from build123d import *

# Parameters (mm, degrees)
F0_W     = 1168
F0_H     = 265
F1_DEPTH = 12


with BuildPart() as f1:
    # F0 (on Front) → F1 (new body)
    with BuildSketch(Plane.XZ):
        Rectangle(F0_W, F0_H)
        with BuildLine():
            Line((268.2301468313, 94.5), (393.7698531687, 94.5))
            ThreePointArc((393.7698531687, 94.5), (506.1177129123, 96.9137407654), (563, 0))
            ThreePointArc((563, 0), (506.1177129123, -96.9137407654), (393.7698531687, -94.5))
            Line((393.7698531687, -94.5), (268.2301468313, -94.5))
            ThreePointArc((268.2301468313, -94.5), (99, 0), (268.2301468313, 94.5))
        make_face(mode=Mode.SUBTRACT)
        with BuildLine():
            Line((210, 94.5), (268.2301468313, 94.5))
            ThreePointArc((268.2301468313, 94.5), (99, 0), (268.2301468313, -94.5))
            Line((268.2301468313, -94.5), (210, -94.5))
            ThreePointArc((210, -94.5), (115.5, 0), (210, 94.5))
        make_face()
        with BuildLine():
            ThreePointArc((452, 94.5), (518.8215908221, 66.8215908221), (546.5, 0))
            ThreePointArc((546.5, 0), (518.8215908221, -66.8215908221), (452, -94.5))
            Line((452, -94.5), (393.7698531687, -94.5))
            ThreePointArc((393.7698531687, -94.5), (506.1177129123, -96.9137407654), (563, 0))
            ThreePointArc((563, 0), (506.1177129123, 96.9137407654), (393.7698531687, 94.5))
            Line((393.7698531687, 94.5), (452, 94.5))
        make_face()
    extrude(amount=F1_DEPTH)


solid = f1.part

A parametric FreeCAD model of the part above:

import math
import FreeCAD as App
import Part
import Sketcher

V = App.Vector
Q = App.Units.Quantity


def add_polygon(sketch, points):
    """Adds a closed chain of lines whose ends are joined by coincident constraints."""
    first, n = sketch.GeometryCount, len(points)
    for a, b in zip(points, points[1:] + points[:1]):
        sketch.addGeometry(Part.LineSegment(App.Vector(*a, 0), App.Vector(*b, 0)), False)
    for i in range(n):
        sketch.addConstraint(Sketcher.Constraint("Coincident", first + i, 2, first + (i + 1) % n, 1))

doc = App.newDocument("Part")
body = doc.addObject("PartDesign::Body", "Body")

# Sketch on XZ plane
sketch1 = body.newObject("Sketcher::SketchObject", "Sketch")
sketch1.AttachmentSupport = (doc.getObject("XZ_Plane"), [""])
sketch1.MapMode = "FlatFace"
add_polygon(sketch1, [(-584, 132), (-584, -132), (584, -132), (584, 132)])  # lines 0-3
sketch1.addGeometry(Part.ArcOfCircle(Part.Circle(V(210, 0, 0), V(0, 0, 1), 94), math.radians(90), math.radians(270)), False)  # 4
sketch1.addGeometry(Part.LineSegment(V(210, 94, 0), V(452, 94, 0)), False)  # 5
sketch1.addGeometry(Part.ArcOfCircle(Part.Circle(V(452, 0, 0), V(0, 0, 1), 94), math.radians(0), math.radians(90)), False)  # 6
sketch1.addGeometry(Part.ArcOfCircle(Part.Circle(V(452, 0, 0), V(0, 0, 1), 94), math.radians(-90), math.radians(0)), False)  # 7
sketch1.addGeometry(Part.LineSegment(V(452, -94, 0), V(210, -94, 0)), False)  # 8
sketch1.addConstraint([
    Sketcher.Constraint("Tangent", 4, 1, 5, 1),
    Sketcher.Constraint("Tangent", 5, 2, 6, 2),
    Sketcher.Constraint("Tangent", 6, 1, 7, 2),
    Sketcher.Constraint("Tangent", 7, 1, 8, 1),
    Sketcher.Constraint("Tangent", 8, 2, 4, 2),
    Sketcher.Constraint("Vertical", 0),
    Sketcher.Constraint("Horizontal", 1),
    Sketcher.Constraint("Vertical", 2),
    Sketcher.Constraint("Horizontal", 3),
    Sketcher.Constraint("Horizontal", 5),
    Sketcher.Constraint("Horizontal", 8),
    Sketcher.Constraint("Equal", 4, 6),
    Sketcher.Constraint("Symmetric", 0, 2, 2, 2, -1, 1),
    Sketcher.Constraint("PointOnObject", 4, 3, -1),
    Sketcher.Constraint("PointOnObject", 6, 1, -1),
    Sketcher.Constraint("Radius", 4, Q("94.5 mm")),
    Sketcher.Constraint("DistanceX", 1, 1, 1, 2, Q("1168 mm")),
    Sketcher.Constraint("DistanceX", 5, 1, 5, 2, Q("242 mm")),
    Sketcher.Constraint("DistanceY", 0, 2, 0, 1, Q("265 mm")),
    Sketcher.Constraint("DistanceX", -1, 1, 4, 3, Q("210 mm")),
])
pad1 = body.newObject("PartDesign::Pad", "Pad")
pad1.Profile = sketch1
pad1.Length = 12

doc.recompute()
